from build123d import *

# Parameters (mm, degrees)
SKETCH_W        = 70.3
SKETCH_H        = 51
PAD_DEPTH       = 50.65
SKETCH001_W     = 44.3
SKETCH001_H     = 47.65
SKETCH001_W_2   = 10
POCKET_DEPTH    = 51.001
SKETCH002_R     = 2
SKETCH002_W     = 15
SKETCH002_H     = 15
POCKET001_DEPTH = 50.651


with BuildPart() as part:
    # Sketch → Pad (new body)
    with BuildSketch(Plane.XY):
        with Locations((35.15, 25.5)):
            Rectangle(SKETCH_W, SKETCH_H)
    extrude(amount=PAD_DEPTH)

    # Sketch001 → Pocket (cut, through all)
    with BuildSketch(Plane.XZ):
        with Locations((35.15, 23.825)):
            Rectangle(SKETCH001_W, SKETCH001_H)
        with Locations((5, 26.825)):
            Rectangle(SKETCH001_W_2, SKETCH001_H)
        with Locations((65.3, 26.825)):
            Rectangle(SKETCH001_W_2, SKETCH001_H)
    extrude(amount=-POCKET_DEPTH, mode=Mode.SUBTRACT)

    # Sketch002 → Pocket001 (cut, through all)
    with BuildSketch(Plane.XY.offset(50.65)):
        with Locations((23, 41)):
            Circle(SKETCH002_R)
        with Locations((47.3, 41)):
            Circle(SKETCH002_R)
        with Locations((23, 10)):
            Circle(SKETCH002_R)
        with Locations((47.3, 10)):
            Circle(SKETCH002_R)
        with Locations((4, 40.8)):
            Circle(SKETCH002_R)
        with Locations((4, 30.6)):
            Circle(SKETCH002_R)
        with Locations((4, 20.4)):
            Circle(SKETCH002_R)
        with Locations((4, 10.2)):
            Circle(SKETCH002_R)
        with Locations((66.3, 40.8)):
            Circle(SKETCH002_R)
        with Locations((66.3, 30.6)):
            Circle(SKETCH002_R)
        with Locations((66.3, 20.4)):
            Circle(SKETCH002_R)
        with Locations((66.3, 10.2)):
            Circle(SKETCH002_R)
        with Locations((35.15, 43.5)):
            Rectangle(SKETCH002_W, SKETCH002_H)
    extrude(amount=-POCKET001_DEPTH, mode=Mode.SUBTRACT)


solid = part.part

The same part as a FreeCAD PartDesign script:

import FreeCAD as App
import Part
import Sketcher
from FreeCAD import Vector

doc = App.newDocument("Part")
body = doc.addObject("PartDesign::Body", "Body")

# Sketch on XY plane
sketch1 = body.newObject("Sketcher::SketchObject", "Sketch")
sketch1.AttachmentSupport = (doc.getObject("XY_Plane"), [""])
sketch1.MapMode = "FlatFace"
sketch1.addGeometry([
    Part.LineSegment(Vector(0, 51, 0), Vector(0, 0, 0)),
    Part.LineSegment(Vector(0, 0, 0), Vector(70, 0, 0)),
    Part.LineSegment(Vector(70, 0, 0), Vector(70, 51, 0)),
    Part.LineSegment(Vector(70, 51, 0), Vector(0, 51, 0)),
], False)
sketch1.addConstraint([
    Sketcher.Constraint("Coincident", 0, 2, 1, 1),
    Sketcher.Constraint("Coincident", 1, 2, 2, 1),
    Sketcher.Constraint("Coincident", 2, 2, 3, 1),
    Sketcher.Constraint("Coincident", 3, 2, 0, 1),
    Sketcher.Constraint("Vertical", 0),
    Sketcher.Constraint("Horizontal", 1),
    Sketcher.Constraint("Vertical", 2),
    Sketcher.Constraint("Horizontal", 3),
    Sketcher.Constraint("Coincident", 0, 2, -1, 1),
    Sketcher.Constraint("DistanceY", 0, 2, 0, 1, 51.0),
    Sketcher.Constraint("DistanceX", 1, 1, 1, 2, 70.3),
])
pad1 = body.newObject("PartDesign::Pad", "Pad")
pad1.Profile = sketch1
pad1.Length = 50.65

# Sketch on XZ plane
sketch2 = body.newObject("Sketcher::SketchObject", "Sketch001")
sketch2.AttachmentSupport = (doc.getObject("XZ_Plane"), [""])
sketch2.MapMode = "FlatFace"
sketch2.addGeometry([
    Part.LineSegment(Vector(13, 48, 0), Vector(13, 0, 0)),  # 0
    Part.LineSegment(Vector(13, 0, 0), Vector(57, 0, 0)),  # 1
    Part.LineSegment(Vector(57, 0, 0), Vector(57, 48, 0)),  # 2
    Part.LineSegment(Vector(57, 48, 0), Vector(13, 48, 0)),  # 3
    Part.LineSegment(Vector(0, 51, 0), Vector(0, 3, 0)),  # 4
    Part.LineSegment(Vector(0, 3, 0), Vector(10, 3, 0)),  # 5
    Part.LineSegment(Vector(10, 3, 0), Vector(10, 51, 0)),  # 6
    Part.LineSegment(Vector(10, 51, 0), Vector(0, 51, 0)),  # 7
    Part.LineSegment(Vector(60, 51, 0), Vector(60, 3, 0)),  # 8
    Part.LineSegment(Vector(60, 3, 0), Vector(70, 3, 0)),  # 9
    Part.LineSegment(Vector(70, 3, 0), Vector(70, 51, 0)),  # 10
    Part.LineSegment(Vector(70, 51, 0), Vector(60, 51, 0)),  # 11
], False)
sketch2.addConstraint([
    Sketcher.Constraint("Coincident", 0, 2, 1, 1),
    Sketcher.Constraint("Coincident", 1, 2, 2, 1),
    Sketcher.Constraint("Coincident", 2, 2, 3, 1),
    Sketcher.Constraint("Coincident", 3, 2, 0, 1),
    Sketcher.Constraint("Coincident", 4, 2, 5, 1),
    Sketcher.Constraint("Coincident", 5, 2, 6, 1),
    Sketcher.Constraint("Coincident", 6, 2, 7, 1),
    Sketcher.Constraint("Coincident", 7, 2, 4, 1),
    Sketcher.Constraint("Coincident", 8, 2, 9, 1),
    Sketcher.Constraint("Coincident", 9, 2, 10, 1),
    Sketcher.Constraint("Coincident", 10, 2, 11, 1),
    Sketcher.Constraint("Coincident", 11, 2, 8, 1),
    Sketcher.Constraint("Vertical", 0),
    Sketcher.Constraint("Horizontal", 1),
    Sketcher.Constraint("Vertical", 2),
    Sketcher.Constraint("Horizontal", 3),
    Sketcher.Constraint("Vertical", 4),
    Sketcher.Constraint("Horizontal", 5),
    Sketcher.Constraint("Vertical", 6),
    Sketcher.Constraint("Horizontal", 7),
    Sketcher.Constraint("Vertical", 8),
    Sketcher.Constraint("Horizontal", 9),
    Sketcher.Constraint("Vertical", 10),
    Sketcher.Constraint("Horizontal", 11),
    Sketcher.Constraint("PointOnObject", 0, 2, -1),
    Sketcher.Constraint("PointOnObject", 4, 2, -2),
    Sketcher.Constraint("Horizontal", 5, 2, 8, 2),
    Sketcher.Constraint("Horizontal", 7, 2, 10, 2),
    Sketcher.Constraint("Equal", 7, 9),
    Sketcher.Constraint("Equal", 2, 4),
    Sketcher.Constraint("DistanceX", 5, 1, 5, 2, 10.0),
    Sketcher.Constraint("DistanceX", 1, 1, 1, 2, 44.3),
    Sketcher.Constraint("DistanceX", -1, 1, 0, 2, 13.0),
    Sketcher.Constraint("DistanceY", -1, 1, 4, 2, 3.0),
    Sketcher.Constraint("DistanceX", 1, 2, 8, 2, 3.0),
    Sketcher.Constraint("DistanceY", 0, 2, 0, 1, 47.65),
])
pocket1 = body.newObject("PartDesign::Pocket", "Pocket")
pocket1.Profile = sketch2
pocket1.Type = "ThroughAll"

# Sketch on XY plane
sketch3 = body.newObject("Sketcher::SketchObject", "Sketch002")
sketch3.AttachmentSupport = (doc.getObject("XY_Plane"), [""])
sketch3.MapMode = "FlatFace"
sketch3.AttachmentOffset = App.Placement(Vector(0, 0, 50.65), App.Rotation())
sketch3.addGeometry([
    Part.Circle(Vector(23, 41, 0), Vector(0, 0, 1), 2),  # 0
    Part.Circle(Vector(47.3, 41, 0), Vector(0, 0, 1), 2),  # 1
    Part.Circle(Vector(23, 10, 0), Vector(0, 0, 1), 2),  # 2
    Part.Circle(Vector(47.3, 10, 0), Vector(0, 0, 1), 2),  # 3
    Part.Circle(Vector(4, 40.8, 0), Vector(0, 0, 1), 2),  # 4
    Part.Circle(Vector(4, 30.6, 0), Vector(0, 0, 1), 2),  # 5
    Part.Circle(Vector(4, 20.4, 0), Vector(0, 0, 1), 2),  # 6
    Part.Circle(Vector(4, 10.2, 0), Vector(0, 0, 1), 2),  # 7
    Part.Circle(Vector(66.3, 40.8, 0), Vector(0, 0, 1), 2),  # 8
    Part.Circle(Vector(66.3, 30.6, 0), Vector(0, 0, 1), 2),  # 9
    Part.Circle(Vector(66.3, 20.4, 0), Vector(0, 0, 1), 2),  # 10
    Part.Circle(Vector(66.3, 10.2, 0), Vector(0, 0, 1), 2),  # 11
    Part.LineSegment(Vector(27.6, 51, 0), Vector(27.6, 36, 0)),  # 12
    Part.LineSegment(Vector(27.6, 36, 0), Vector(42.6, 36, 0)),  # 13
    Part.LineSegment(Vector(42.6, 36, 0), Vector(42.6, 51, 0)),  # 14
    Part.LineSegment(Vector(42.6, 51, 0), Vector(27.6, 51, 0)),  # 15
], False)
sketch3.addConstraint([
    Sketcher.Constraint("Coincident", 12, 2, 13, 1),
    Sketcher.Constraint("Coincident", 13, 2, 14, 1),
    Sketcher.Constraint("Coincident", 14, 2, 15, 1),
    Sketcher.Constraint("Coincident", 15, 2, 12, 1),
    Sketcher.Constraint("Vertical", 12),
    Sketcher.Constraint("Horizontal", 13),
    Sketcher.Constraint("Vertical", 14),
    Sketcher.Constraint("Horizontal", 15),
    Sketcher.Constraint("Equal", 0, 1),
    Sketcher.Constraint("Equal", 1, 2),
    Sketcher.Constraint("Equal", 2, 3),
    Sketcher.Constraint("Equal", 3, 4),
    Sketcher.Constraint("Equal", 4, 5),
    Sketcher.Constraint("Equal", 5, 6),
    Sketcher.Constraint("Equal", 6, 7),
    Sketcher.Constraint("Equal", 7, 8),
    Sketcher.Constraint("Equal", 8, 9),
    Sketcher.Constraint("Equal", 9, 10),
    Sketcher.Constraint("Equal", 10, 11),
    Sketcher.Constraint("Horizontal", 0, 3, 1, 3),
    Sketcher.Constraint("Horizontal", 2, 3, 3, 3),
    Sketcher.Constraint("Horizontal", 4, 3, 8, 3),
    Sketcher.Constraint("Horizontal", 5, 3, 9, 3),
    Sketcher.Constraint("Horizontal", 6, 3, 10, 3),
    Sketcher.Constraint("Horizontal", 7, 3, 11, 3),
    Sketcher.Constraint("Vertical", 0, 3, 2, 3),
    Sketcher.Constraint("Vertical", 1, 3, 3, 3),
    Sketcher.Constraint("Vertical", 4, 3, 5, 3),
    Sketcher.Constraint("Vertical", 5, 3, 6, 3),
    Sketcher.Constraint("Vertical", 6, 3, 7, 3),
    Sketcher.Constraint("Vertical", 8, 3, 9, 3),
    Sketcher.Constraint("Vertical", 9, 3, 10, 3),
    Sketcher.Constraint("Vertical", 10, 3, 11, 3),
    Sketcher.Constraint("Equal", 15, 12),
    Sketcher.Constraint("Diameter", 0, 4.0),
    Sketcher.Constraint("DistanceX", 13, 1, 13, 2, 15.0),
    Sketcher.Constraint("DistanceX", -1, 1, 0, 3, 23.0),
    Sketcher.Constraint("DistanceY", -1, 1, 0, 3, 41.0),
    Sketcher.Constraint("DistanceY", -1, 1, 2, 3, 10.0),
    Sketcher.Constraint("DistanceX", -1, 1, 4, 3, 4.0),
    Sketcher.Constraint("DistanceY", -1, 1, 12, 2, 36.0),
    Sketcher.Constraint("DistanceX", 1, 3, 8, 3, 19.0),
    Sketcher.Constraint("DistanceX", -1, 1, 1, 3, 47.3),
    Sketcher.Constraint("DistanceY", -1, 1, 4, 3, 40.8),
    Sketcher.Constraint("DistanceY", -1, 1, 5, 3, 30.6),
    Sketcher.Constraint("DistanceY", -1, 1, 6, 3, 20.4),
    Sketcher.Constraint("DistanceY", -1, 1, 7, 3, 10.2),
    Sketcher.Constraint("DistanceX", -1, 1, 12, 2, 27.65),
])
pocket2 = body.newObject("PartDesign::Pocket", "Pocket001")
pocket2.Profile = sketch3
pocket2.Type = "ThroughAll"

doc.recompute()
